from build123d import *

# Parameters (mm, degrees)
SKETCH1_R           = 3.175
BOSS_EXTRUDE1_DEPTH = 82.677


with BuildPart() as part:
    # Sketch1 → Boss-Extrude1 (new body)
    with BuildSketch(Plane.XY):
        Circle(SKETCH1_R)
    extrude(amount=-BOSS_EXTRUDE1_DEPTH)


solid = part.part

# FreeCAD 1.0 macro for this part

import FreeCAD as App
import Part
import Sketcher
Q = App.Units.Quantity

doc = App.newDocument("Part")
body = doc.addObject("PartDesign::Body", "Body")

# Sketch on XY plane
sketch1 = doc.addObject("Sketcher::SketchObject", "Sketch")
body.addObject(sketch1)
sketch1.AttachmentSupport = (doc.XY_Plane, [""])
sketch1.MapMode = "FlatFace"
sketch1.addGeometry(Part.Circle(App.Vector(0, 0, 0), App.Vector(0, 0, 1), 3.2), False)
sketch1.addConstraint(Sketcher.Constraint("Coincident", 0, 3, -1, 1))
sketch1.addConstraint(Sketcher.Constraint("Diameter", 0, Q("0.25 in")))
pad1 = doc.addObject("PartDesign::Pad", "Pad")
body.addObject(pad1)
pad1.Profile = sketch1
pad1.Length = Q("3.255 in")
pad1.Reversed = True

doc.recompute()
